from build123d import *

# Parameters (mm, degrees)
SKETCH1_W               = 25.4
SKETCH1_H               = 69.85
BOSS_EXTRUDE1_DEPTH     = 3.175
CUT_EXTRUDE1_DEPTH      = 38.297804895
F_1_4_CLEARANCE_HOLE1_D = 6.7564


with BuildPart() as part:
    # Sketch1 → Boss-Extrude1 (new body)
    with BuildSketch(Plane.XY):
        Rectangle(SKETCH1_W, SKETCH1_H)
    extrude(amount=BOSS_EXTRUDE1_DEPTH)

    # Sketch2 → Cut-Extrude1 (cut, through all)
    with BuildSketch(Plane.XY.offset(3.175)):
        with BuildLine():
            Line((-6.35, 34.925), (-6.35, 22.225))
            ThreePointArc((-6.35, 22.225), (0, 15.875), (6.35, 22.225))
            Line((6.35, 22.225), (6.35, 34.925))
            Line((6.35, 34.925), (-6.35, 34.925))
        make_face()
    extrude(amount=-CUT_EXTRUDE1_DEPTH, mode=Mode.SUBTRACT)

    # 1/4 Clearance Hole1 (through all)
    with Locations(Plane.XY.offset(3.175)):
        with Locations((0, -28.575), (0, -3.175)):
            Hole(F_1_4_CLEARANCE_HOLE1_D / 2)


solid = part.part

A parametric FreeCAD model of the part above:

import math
import FreeCAD as App
import Part
import Sketcher
Q = App.Units.Quantity

doc = App.newDocument("Part")
body = doc.addObject("PartDesign::Body", "Body")

# Sketch on XY plane
sketch1 = body.newObject("Sketcher::SketchObject", "Sketch")
sketch1.AttachmentSupport = (doc.getObject("XY_Plane"), [""])
sketch1.MapMode = "FlatFace"
sketch1.addGeometry(Part.LineSegment(App.Vector(-13, 35, 0), App.Vector(-13, -35, 0)), False)
sketch1.addGeometry(Part.LineSegment(App.Vector(-13, -35, 0), App.Vector(13, -35, 0)), False)
sketch1.addGeometry(Part.LineSegment(App.Vector(13, -35, 0), App.Vector(13, 35, 0)), False)
sketch1.addGeometry(Part.LineSegment(App.Vector(13, 35, 0), App.Vector(-13, 35, 0)), False)
sketch1.addConstraint(Sketcher.Constraint("Coincident", 0, 2, 1, 1))
sketch1.addConstraint(Sketcher.Constraint("Coincident", 1, 2, 2, 1))
sketch1.addConstraint(Sketcher.Constraint("Coincident", 2, 2, 3, 1))
sketch1.addConstraint(Sketcher.Constraint("Coincident", 3, 2, 0, 1))
sketch1.addConstraint(Sketcher.Constraint("Vertical", 0))
sketch1.addConstraint(Sketcher.Constraint("Horizontal", 1))
sketch1.addConstraint(Sketcher.Constraint("Vertical", 2))
sketch1.addConstraint(Sketcher.Constraint("Horizontal", 3))
sketch1.addConstraint(Sketcher.Constraint("Symmetric", 0, 2, 2, 2, -1, 1))
sketch1.addConstraint(Sketcher.Constraint("DistanceX", 1, 1, 1, 2, Q("1 in")))
sketch1.addConstraint(Sketcher.Constraint("DistanceY", 0, 2, 0, 1, Q("2.75 in")))
pad1 = body.newObject("PartDesign::Pad", "Pad")
pad1.Profile = sketch1
pad1.Length = Q("0.125 in")

# Sketch on XY plane
sketch2 = body.newObject("Sketcher::SketchObject", "Sketch001")
sketch2.AttachmentSupport = (doc.getObject("XY_Plane"), [""])
sketch2.MapMode = "FlatFace"
sketch2.AttachmentOffset = App.Placement(App.Vector(0, 0, 0.125 * 25.4), App.Rotation())
sketch2.addGeometry(Part.LineSegment(App.Vector(-6, 35, 0), App.Vector(-6, 22, 0)), False)
sketch2.addGeometry(Part.ArcOfCircle(Part.Circle(App.Vector(0, 22, 0), App.Vector(0, 0, 1), 6), math.radians(180), math.radians(360)), False)
sketch2.addGeometry(Part.LineSegment(App.Vector(6, 22, 0), App.Vector(6, 35, 0)), False)
sketch2.addGeometry(Part.LineSegment(App.Vector(6, 35, 0), App.Vector(-6, 35, 0)), False)
sketch2.addConstraint(Sketcher.Constraint("Tangent", 0, 2, 1, 1))
sketch2.addConstraint(Sketcher.Constraint("Tangent", 1, 2, 2, 1))
sketch2.addConstraint(Sketcher.Constraint("Coincident", 2, 2, 3, 1))
sketch2.addConstraint(Sketcher.Constraint("Coincident", 3, 2, 0, 1))
sketch2.addConstraint(Sketcher.Constraint("Vertical", 0))
sketch2.addConstraint(Sketcher.Constraint("Vertical", 2))
sketch2.addConstraint(Sketcher.Constraint("Horizontal", 3))
sketch2.addConstraint(Sketcher.Constraint("PointOnObject", 1, 3, -2))
sketch2.addConstraint(Sketcher.Constraint("Equal", 3, 0))
sketch2.addConstraint(Sketcher.Constraint("Radius", 1, Q("0.25 in")))
sketch2.addConstraint(Sketcher.Constraint("DistanceY", -1, 1, 1, 3, Q("0.875 in")))
pocket1 = body.newObject("PartDesign::Pocket", "Pocket")
pocket1.Profile = sketch2
pocket1.Type = "ThroughAll"

# Sketch on XY plane
sketch3 = body.newObject("Sketcher::SketchObject", "Sketch002")
sketch3.AttachmentSupport = (doc.getObject("XY_Plane"), [""])
sketch3.MapMode = "FlatFace"
sketch3.AttachmentOffset = App.Placement(App.Vector(0, 0, 0.125 * 25.4), App.Rotation())
sketch3.addGeometry(Part.Circle(App.Vector(0, -28.6, 0), App.Vector(0, 0, 1), 3.4), False)
sketch3.addGeometry(Part.Circle(App.Vector(0, -3.2, 0), App.Vector(0, 0, 1), 3.4), False)
sketch3.addConstraint(Sketcher.Constraint("Equal", 0, 1))
sketch3.addConstraint(Sketcher.Constraint("PointOnObject", 0, 3, -2))
sketch3.addConstraint(Sketcher.Constraint("PointOnObject", 1, 3, -2))
sketch3.addConstraint(Sketcher.Constraint("Diameter", 0, Q("0.266 in")))
sketch3.addConstraint(Sketcher.Constraint("DistanceY", 0, 3, 1, 3, Q("1 in")))
sketch3.addConstraint(Sketcher.Constraint("DistanceY", 0, 3, -1, 1, Q("1.125 in")))
doc.recompute()
hole = body.newObject("PartDesign::Hole", "Hole")
hole.Profile = sketch3
hole.ThreadType = "None"
hole.Diameter = Q("0.266 in")
hole.DepthType = "ThroughAll"

doc.recompute()
